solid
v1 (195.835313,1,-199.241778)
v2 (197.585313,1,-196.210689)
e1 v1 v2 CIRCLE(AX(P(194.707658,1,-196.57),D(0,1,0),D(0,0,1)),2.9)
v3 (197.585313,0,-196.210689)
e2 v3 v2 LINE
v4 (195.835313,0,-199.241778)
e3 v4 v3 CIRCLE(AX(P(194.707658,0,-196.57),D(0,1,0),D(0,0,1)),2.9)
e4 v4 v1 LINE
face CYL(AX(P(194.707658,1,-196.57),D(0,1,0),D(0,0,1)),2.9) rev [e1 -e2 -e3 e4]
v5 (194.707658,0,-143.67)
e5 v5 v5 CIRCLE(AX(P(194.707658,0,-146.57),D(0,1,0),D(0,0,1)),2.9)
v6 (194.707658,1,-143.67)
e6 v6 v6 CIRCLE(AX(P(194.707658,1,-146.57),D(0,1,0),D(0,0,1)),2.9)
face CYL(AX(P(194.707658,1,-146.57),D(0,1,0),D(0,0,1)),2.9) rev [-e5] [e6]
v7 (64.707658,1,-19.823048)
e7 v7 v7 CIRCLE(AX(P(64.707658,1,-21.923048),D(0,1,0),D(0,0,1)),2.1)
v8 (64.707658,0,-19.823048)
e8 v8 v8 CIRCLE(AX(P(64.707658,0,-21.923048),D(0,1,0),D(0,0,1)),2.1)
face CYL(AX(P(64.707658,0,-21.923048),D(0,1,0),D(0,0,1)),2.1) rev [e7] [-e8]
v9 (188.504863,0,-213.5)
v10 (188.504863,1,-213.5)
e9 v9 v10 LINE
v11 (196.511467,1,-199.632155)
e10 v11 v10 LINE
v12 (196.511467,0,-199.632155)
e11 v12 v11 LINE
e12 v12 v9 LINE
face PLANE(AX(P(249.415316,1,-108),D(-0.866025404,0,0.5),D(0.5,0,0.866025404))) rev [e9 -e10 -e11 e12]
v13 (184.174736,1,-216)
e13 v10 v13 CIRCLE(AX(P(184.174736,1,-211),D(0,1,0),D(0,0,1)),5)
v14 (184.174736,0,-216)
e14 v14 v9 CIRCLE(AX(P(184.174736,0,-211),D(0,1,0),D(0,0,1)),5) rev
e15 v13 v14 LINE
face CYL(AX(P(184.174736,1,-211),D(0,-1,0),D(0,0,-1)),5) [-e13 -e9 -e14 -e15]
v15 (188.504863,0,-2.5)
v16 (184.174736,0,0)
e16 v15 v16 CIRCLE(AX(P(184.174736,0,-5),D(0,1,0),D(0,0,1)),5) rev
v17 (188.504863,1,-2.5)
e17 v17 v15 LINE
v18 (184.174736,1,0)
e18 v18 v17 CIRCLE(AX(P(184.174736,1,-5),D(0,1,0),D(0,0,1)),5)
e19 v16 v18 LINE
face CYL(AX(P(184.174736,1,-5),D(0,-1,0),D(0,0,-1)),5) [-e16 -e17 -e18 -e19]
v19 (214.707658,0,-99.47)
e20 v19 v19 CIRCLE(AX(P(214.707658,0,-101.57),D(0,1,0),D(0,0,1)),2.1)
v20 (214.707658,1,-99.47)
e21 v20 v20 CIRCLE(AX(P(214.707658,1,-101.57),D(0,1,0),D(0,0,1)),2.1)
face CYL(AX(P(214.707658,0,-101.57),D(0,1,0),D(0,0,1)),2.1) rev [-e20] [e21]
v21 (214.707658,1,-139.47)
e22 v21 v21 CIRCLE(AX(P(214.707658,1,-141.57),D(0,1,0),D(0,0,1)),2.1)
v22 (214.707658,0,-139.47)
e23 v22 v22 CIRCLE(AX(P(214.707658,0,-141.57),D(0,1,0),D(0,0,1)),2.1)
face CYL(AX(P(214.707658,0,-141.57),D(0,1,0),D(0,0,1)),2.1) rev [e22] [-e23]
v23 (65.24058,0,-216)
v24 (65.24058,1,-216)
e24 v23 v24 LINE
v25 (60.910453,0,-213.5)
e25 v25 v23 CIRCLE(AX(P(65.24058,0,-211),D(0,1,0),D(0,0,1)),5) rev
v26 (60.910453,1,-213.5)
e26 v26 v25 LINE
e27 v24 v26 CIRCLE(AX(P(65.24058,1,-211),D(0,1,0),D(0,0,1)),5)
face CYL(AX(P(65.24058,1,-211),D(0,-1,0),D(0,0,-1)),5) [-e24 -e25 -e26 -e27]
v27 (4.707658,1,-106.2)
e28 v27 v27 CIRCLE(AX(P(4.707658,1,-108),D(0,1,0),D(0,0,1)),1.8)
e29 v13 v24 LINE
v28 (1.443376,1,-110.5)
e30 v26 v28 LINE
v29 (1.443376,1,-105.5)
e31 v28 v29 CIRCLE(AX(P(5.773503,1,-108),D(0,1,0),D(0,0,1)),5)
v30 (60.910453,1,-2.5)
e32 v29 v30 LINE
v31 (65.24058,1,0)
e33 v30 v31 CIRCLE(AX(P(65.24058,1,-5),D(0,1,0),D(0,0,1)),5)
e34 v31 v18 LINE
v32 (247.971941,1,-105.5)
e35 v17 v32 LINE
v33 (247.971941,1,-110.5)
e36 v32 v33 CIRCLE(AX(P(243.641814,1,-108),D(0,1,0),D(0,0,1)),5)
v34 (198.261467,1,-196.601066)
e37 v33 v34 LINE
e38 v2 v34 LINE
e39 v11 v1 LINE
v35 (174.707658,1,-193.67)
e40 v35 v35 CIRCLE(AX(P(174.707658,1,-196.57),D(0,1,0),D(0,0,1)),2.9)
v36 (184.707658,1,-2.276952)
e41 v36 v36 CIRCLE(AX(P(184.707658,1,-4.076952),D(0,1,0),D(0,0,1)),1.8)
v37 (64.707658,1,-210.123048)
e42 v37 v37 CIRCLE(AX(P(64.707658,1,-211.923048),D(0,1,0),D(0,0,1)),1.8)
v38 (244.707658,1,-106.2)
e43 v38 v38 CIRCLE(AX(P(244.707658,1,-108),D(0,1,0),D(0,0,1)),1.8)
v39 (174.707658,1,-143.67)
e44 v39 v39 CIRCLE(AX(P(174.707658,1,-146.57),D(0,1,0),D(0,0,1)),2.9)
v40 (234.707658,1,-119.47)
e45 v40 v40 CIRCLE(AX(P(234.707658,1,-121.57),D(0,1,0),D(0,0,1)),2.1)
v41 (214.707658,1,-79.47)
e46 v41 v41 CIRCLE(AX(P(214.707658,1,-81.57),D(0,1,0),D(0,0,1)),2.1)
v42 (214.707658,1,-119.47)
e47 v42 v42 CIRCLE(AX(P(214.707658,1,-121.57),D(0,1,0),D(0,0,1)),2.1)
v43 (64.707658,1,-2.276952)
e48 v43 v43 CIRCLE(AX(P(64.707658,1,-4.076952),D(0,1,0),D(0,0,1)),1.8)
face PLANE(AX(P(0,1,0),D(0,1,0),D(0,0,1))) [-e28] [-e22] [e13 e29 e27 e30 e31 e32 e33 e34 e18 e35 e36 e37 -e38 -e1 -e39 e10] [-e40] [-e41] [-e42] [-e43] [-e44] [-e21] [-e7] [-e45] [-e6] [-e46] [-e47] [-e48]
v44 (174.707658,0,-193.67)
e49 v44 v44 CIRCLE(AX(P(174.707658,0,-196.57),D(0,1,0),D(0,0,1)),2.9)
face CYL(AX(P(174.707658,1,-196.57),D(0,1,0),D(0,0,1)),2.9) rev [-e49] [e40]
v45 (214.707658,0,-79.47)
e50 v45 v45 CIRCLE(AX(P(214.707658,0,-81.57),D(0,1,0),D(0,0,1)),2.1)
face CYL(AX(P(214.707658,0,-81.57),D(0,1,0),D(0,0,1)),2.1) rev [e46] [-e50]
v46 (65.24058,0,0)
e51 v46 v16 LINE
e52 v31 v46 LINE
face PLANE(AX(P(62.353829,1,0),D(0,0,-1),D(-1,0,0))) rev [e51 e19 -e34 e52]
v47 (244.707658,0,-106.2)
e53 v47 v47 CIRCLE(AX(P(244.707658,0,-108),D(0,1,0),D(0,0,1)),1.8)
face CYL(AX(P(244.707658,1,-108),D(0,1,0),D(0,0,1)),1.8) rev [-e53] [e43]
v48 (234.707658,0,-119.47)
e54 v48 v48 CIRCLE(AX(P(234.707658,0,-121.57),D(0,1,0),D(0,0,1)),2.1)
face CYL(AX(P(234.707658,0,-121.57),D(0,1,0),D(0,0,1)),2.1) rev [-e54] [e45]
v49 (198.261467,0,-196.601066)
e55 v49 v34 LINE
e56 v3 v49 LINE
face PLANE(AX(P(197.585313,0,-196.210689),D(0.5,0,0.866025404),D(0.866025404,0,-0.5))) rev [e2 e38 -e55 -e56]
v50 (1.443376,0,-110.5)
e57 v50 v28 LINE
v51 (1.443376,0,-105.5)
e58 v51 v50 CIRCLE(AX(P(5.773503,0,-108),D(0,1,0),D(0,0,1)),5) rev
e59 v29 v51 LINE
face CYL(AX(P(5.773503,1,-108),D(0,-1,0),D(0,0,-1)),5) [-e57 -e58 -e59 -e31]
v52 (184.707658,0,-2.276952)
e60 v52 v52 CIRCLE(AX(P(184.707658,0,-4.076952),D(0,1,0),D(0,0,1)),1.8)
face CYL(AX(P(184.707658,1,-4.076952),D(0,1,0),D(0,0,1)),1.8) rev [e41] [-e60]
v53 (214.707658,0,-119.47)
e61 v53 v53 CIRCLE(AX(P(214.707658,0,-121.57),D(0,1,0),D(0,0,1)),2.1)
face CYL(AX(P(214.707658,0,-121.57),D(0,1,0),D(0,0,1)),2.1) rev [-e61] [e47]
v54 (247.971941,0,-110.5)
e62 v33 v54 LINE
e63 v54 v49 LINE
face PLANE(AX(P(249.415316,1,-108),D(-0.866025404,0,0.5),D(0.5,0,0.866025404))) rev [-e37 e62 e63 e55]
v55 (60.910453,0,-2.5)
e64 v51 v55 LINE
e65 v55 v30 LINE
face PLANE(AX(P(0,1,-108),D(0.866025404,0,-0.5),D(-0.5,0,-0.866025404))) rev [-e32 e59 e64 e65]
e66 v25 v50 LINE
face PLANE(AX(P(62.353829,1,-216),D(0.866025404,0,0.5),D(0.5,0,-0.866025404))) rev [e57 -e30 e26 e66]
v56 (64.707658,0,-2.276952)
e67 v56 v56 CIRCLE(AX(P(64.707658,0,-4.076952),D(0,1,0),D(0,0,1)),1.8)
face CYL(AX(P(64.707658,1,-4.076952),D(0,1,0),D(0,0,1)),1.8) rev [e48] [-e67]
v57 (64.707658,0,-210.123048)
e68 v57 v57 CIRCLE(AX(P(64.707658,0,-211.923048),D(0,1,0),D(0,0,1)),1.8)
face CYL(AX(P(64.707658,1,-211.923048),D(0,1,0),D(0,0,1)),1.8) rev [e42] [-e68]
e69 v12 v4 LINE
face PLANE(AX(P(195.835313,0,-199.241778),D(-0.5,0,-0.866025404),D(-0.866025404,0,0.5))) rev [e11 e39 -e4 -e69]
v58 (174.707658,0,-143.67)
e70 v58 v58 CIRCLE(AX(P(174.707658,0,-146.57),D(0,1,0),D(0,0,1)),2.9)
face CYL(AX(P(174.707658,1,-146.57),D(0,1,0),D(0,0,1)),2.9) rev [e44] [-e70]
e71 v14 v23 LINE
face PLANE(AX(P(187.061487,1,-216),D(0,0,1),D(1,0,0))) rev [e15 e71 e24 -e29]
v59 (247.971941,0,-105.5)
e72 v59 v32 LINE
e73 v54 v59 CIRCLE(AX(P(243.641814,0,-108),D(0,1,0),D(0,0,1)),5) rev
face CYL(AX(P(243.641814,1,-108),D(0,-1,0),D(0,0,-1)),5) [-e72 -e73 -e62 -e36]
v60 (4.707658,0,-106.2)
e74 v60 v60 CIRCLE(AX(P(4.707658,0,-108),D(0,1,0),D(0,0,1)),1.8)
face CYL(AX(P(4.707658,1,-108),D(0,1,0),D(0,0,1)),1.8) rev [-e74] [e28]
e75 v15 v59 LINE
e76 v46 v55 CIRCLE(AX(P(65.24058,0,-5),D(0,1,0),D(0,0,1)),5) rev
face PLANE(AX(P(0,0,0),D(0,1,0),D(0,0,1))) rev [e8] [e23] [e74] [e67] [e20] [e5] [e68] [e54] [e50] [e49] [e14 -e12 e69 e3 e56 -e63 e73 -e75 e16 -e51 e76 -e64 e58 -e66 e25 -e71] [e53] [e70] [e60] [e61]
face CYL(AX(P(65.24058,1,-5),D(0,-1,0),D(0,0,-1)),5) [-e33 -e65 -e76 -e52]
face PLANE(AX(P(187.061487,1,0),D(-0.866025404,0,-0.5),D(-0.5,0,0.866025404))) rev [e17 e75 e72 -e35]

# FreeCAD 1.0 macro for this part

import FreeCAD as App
import Part
import Sketcher
from FreeCAD import Vector
Q = App.Units.Quantity


def edges_at(feature, points):
    """Names of the edges that pass closest to the given points."""
    edges = feature.Shape.Edges
    near = lambda p: min(range(len(edges)), key=lambda i: edges[i].distToShape(Part.Vertex(*p))[0])
    return sorted({f"Edge{near(p) + 1}" for p in points})

doc = App.newDocument("Part")
body = doc.addObject("PartDesign::Body", "Body")

# Sketch on XZ plane
sketch1 = body.newObject("Sketcher::SketchObject", "Sketch")
sketch1.AttachmentSupport = (doc.getObject("XZ_Plane"), [""])
sketch1.MapMode = "FlatFace"
sketch1.addGeometry(Part.LineSegment(Vector(62, 0, 0), Vector(187, 0, 0)), False)
sketch1.addGeometry(Part.LineSegment(Vector(187, 0, 0), Vector(249, -108, 0)), False)
sketch1.addGeometry(Part.LineSegment(Vector(249, -108, 0), Vector(187, -216, 0)), False)
sketch1.addGeometry(Part.LineSegment(Vector(187, -216, 0), Vector(62, -216, 0)), False)
sketch1.addGeometry(Part.LineSegment(Vector(62, -216, 0), Vector(0, -108, 0)), False)
sketch1.addGeometry(Part.LineSegment(Vector(0, -108, 0), Vector(62, 0, 0)), False)
sketch1.addConstraint(Sketcher.Constraint("Coincident", 0, 2, 1, 1))
sketch1.addConstraint(Sketcher.Constraint("Coincident", 1, 2, 2, 1))
sketch1.addConstraint(Sketcher.Constraint("Coincident", 2, 2, 3, 1))
sketch1.addConstraint(Sketcher.Constraint("Coincident", 3, 2, 4, 1))
sketch1.addConstraint(Sketcher.Constraint("Coincident", 4, 2, 5, 1))
sketch1.addConstraint(Sketcher.Constraint("Coincident", 5, 2, 0, 1))
sketch1.addConstraint(Sketcher.Constraint("Horizontal", 0))
sketch1.addConstraint(Sketcher.Constraint("Horizontal", 3))
sketch1.addConstraint(Sketcher.Constraint("PointOnObject", 0, 2, -1))
sketch1.addConstraint(Sketcher.Constraint("PointOnObject", 4, 2, -2))
sketch1.addConstraint(Sketcher.Constraint("Parallel", 1, 4))
sketch1.addConstraint(Sketcher.Constraint("Parallel", 2, 5))
sketch1.addConstraint(Sketcher.Constraint("Horizontal", 1, 2, 4, 2))
sketch1.addConstraint(Sketcher.Constraint("Vertical", 0, 2, 2, 2))
sketch1.addConstraint(Sketcher.Constraint("Vertical", 3, 2, 5, 2))
sketch1.addConstraint(Sketcher.Constraint("Angle", 1, Q("-60 deg")))
sketch1.addConstraint(Sketcher.Constraint("DistanceY", 1, 2, -1, 1, 108.0))
sketch1.addConstraint(Sketcher.Constraint("DistanceX", 0, 1, 0, 2, 124.707658))
pad1 = body.newObject("PartDesign::Pad", "Pad")
pad1.Profile = sketch1
pad1.Length = 1
pad1.Reversed = True
doc.recompute()

fillet = body.newObject("PartDesign::Fillet", "Fillet")
fillet.Base = (pad1, edges_at(pad1, [
    (0, 0.5, -108),
    (62.354, 0.5, -216),
    (187.061, 0.5, -216),
    (249.415, 0.5, -108),
    (187.061, 0.5, 0),
    (62.354, 0.5, 0),
]))
fillet.Radius = 5

# Sketch on XZ plane
sketch2 = body.newObject("Sketcher::SketchObject", "Sketch001")
sketch2.AttachmentSupport = (doc.getObject("XZ_Plane"), [""])
sketch2.MapMode = "FlatFace"
sketch2.AttachmentOffset = App.Placement(Vector(0, 0, -1), App.Rotation())
sketch2.addGeometry(Part.Circle(Vector(174.7, -146.6, 0), Vector(0, 0, 1), 2.9), False)
sketch2.addGeometry(Part.Circle(Vector(194.7, -146.6, 0), Vector(0, 0, 1), 2.9), False)
sketch2.addGeometry(Part.Circle(Vector(194.7, -196.6, 0), Vector(0, 0, 1), 2.9), False)
sketch2.addGeometry(Part.Circle(Vector(174.7, -196.6, 0), Vector(0, 0, 1), 2.9), False)
sketch2.addConstraint(Sketcher.Constraint("Equal", 0, 1))
sketch2.addConstraint(Sketcher.Constraint("Equal", 1, 2))
sketch2.addConstraint(Sketcher.Constraint("Equal", 2, 3))
sketch2.addConstraint(Sketcher.Constraint("Horizontal", 0, 3, 1, 3))
sketch2.addConstraint(Sketcher.Constraint("Horizontal", 2, 3, 3, 3))
sketch2.addConstraint(Sketcher.Constraint("Vertical", 1, 3, 2, 3))
sketch2.addConstraint(Sketcher.Constraint("Vertical", 0, 3, 3, 3))
sketch2.addConstraint(Sketcher.Constraint("Diameter", 0, 5.8))
sketch2.addConstraint(Sketcher.Constraint("DistanceX", 0, 3, 1, 3, 20.0))
sketch2.addConstraint(Sketcher.Constraint("DistanceY", 2, 3, 1, 3, 50.0))
sketch2.addConstraint(Sketcher.Constraint("DistanceY", 0, 3, -1, 1, 146.57))
sketch2.addConstraint(Sketcher.Constraint("DistanceX", -1, 1, 0, 3, 174.707658))
doc.recompute()
hole = body.newObject("PartDesign::Hole", "Hole")
hole.Profile = sketch2
hole.ThreadType = "None"
hole.Diameter = 5.8
hole.DepthType = "Dimension"
hole.Depth = 5
hole.DrillPoint = "Angled"
hole.DrillPointAngle = 118
hole.Reversed = True

# Sketch on XZ plane
sketch3 = body.newObject("Sketcher::SketchObject", "Sketch002")
sketch3.AttachmentSupport = (doc.getObject("XZ_Plane"), [""])
sketch3.MapMode = "FlatFace"
sketch3.AttachmentOffset = App.Placement(Vector(0, 0, -1), App.Rotation())
sketch3.addGeometry(Part.Circle(Vector(4.7, -108, 0), Vector(0, 0, 1), 1.8), False)
sketch3.addGeometry(Part.Circle(Vector(64.7, -211.9, 0), Vector(0, 0, 1), 1.8), False)
sketch3.addGeometry(Part.Circle(Vector(244.7, -108, 0), Vector(0, 0, 1), 1.8), False)
sketch3.addGeometry(Part.Circle(Vector(184.7, -4.1, 0), Vector(0, 0, 1), 1.8), False)
sketch3.addGeometry(Part.Circle(Vector(64.7, -4.1, 0), Vector(0, 0, 1), 1.8), False)
sketch3.addConstraint(Sketcher.Constraint("Equal", 0, 1))
sketch3.addConstraint(Sketcher.Constraint("Equal", 1, 2))
sketch3.addConstraint(Sketcher.Constraint("Equal", 2, 3))
sketch3.addConstraint(Sketcher.Constraint("Equal", 3, 4))
sketch3.addConstraint(Sketcher.Constraint("Horizontal", 0, 3, 2, 3))
sketch3.addConstraint(Sketcher.Constraint("Horizontal", 3, 3, 4, 3))
sketch3.addConstraint(Sketcher.Constraint("Vertical", 1, 3, 4, 3))
sketch3.addConstraint(Sketcher.Constraint("Diameter", 0, 3.6))
sketch3.addConstraint(Sketcher.Constraint("DistanceY", 0, 3, -1, 1, 108.0))
sketch3.addConstraint(Sketcher.Constraint("DistanceX", 0, 3, 1, 3, 60.0))
sketch3.addConstraint(Sketcher.Constraint("DistanceX", 1, 3, 2, 3, 180.0))
sketch3.addConstraint(Sketcher.Constraint("DistanceX", 3, 3, 2, 3, 60.0))
sketch3.addConstraint(Sketcher.Constraint("DistanceX", -1, 1, 0, 3, 4.707658))
sketch3.addConstraint(Sketcher.Constraint("DistanceY", 1, 3, -1, 1, 211.923048))
sketch3.addConstraint(Sketcher.Constraint("DistanceY", 3, 3, -1, 1, 4.076952))
doc.recompute()
hole2 = body.newObject("PartDesign::Hole", "Hole001")
hole2.Profile = sketch3
hole2.ThreadType = "None"
hole2.Diameter = 3.6
hole2.DepthType = "ThroughAll"
hole2.Reversed = True

# Sketch on XZ plane
sketch4 = body.newObject("Sketcher::SketchObject", "Sketch003")
sketch4.AttachmentSupport = (doc.getObject("XZ_Plane"), [""])
sketch4.MapMode = "FlatFace"
sketch4.AttachmentOffset = App.Placement(Vector(0, 0, -1), App.Rotation())
sketch4.addGeometry(Part.LineSegment(Vector(196.5, -199.6, 0), Vector(195.8, -199.2, 0)), False)
sketch4.addGeometry(Part.LineSegment(Vector(195.8, -199.2, 0), Vector(197.6, -196.2, 0)), False)
sketch4.addGeometry(Part.LineSegment(Vector(197.6, -196.2, 0), Vector(198.3, -196.6, 0)), False)
sketch4.addGeometry(Part.LineSegment(Vector(198.3, -196.6, 0), Vector(196.5, -199.6, 0)), False)
sketch4.addConstraint(Sketcher.Constraint("Coincident", 0, 2, 1, 1))
sketch4.addConstraint(Sketcher.Constraint("Coincident", 1, 2, 2, 1))
sketch4.addConstraint(Sketcher.Constraint("Coincident", 2, 2, 3, 1))
sketch4.addConstraint(Sketcher.Constraint("Coincident", 3, 2, 0, 1))
sketch4.addConstraint(Sketcher.Constraint("Perpendicular", 0, 1))
sketch4.addConstraint(Sketcher.Constraint("Perpendicular", 1, 2))
sketch4.addConstraint(Sketcher.Constraint("Perpendicular", 2, 3))
sketch4.addConstraint(Sketcher.Constraint("Angle", 0, Q("150 deg")))
sketch4.addConstraint(Sketcher.Constraint("Distance", 1, 3.5))
sketch4.addConstraint(Sketcher.Constraint("DistanceY", 1, 2, -1, 1, 196.210689))
sketch4.addConstraint(Sketcher.Constraint("DistanceY", 0, 2, 2, 2, 2.640711))
sketch4.addConstraint(Sketcher.Constraint("DistanceX", -1, 1, 0, 2, 195.835313))
pocket1 = body.newObject("PartDesign::Pocket", "Pocket")
pocket1.Profile = sketch4
pocket1.Type = "ThroughAll"
pocket1.Reversed = True

# Sketch on XZ plane
sketch5 = body.newObject("Sketcher::SketchObject", "Sketch004")
sketch5.AttachmentSupport = (doc.getObject("XZ_Plane"), [""])
sketch5.MapMode = "FlatFace"
sketch5.AttachmentOffset = App.Placement(Vector(0, 0, -1), App.Rotation())
sketch5.addGeometry(Part.Circle(Vector(64.7, -21.9, 0), Vector(0, 0, 1), 2.1), False)
sketch5.addGeometry(Part.Circle(Vector(214.7, -141.6, 0), Vector(0, 0, 1), 2.1), False)
sketch5.addGeometry(Part.Circle(Vector(214.7, -121.6, 0), Vector(0, 0, 1), 2.1), False)
sketch5.addGeometry(Part.Circle(Vector(214.7, -101.6, 0), Vector(0, 0, 1), 2.1), False)
sketch5.addGeometry(Part.Circle(Vector(214.7, -81.6, 0), Vector(0, 0, 1), 2.1), False)
sketch5.addGeometry(Part.Circle(Vector(234.7, -121.6, 0), Vector(0, 0, 1), 2.1), False)
sketch5.addConstraint(Sketcher.Constraint("Equal", 0, 1))
sketch5.addConstraint(Sketcher.Constraint("Equal", 1, 2))
sketch5.addConstraint(Sketcher.Constraint("Equal", 2, 3))
sketch5.addConstraint(Sketcher.Constraint("Equal", 3, 4))
sketch5.addConstraint(Sketcher.Constraint("Equal", 4, 5))
sketch5.addConstraint(Sketcher.Constraint("Horizontal", 2, 3, 5, 3))
sketch5.addConstraint(Sketcher.Constraint("Vertical", 1, 3, 2, 3))
sketch5.addConstraint(Sketcher.Constraint("Vertical", 2, 3, 3, 3))
sketch5.addConstraint(Sketcher.Constraint("Vertical", 3, 3, 4, 3))
sketch5.addConstraint(Sketcher.Constraint("Diameter", 0, 4.2))
sketch5.addConstraint(Sketcher.Constraint("DistanceX", 0, 3, 1, 3, 150.0))
sketch5.addConstraint(Sketcher.Constraint("DistanceY", 1, 3, 2, 3, 20.0))
sketch5.addConstraint(Sketcher.Constraint("DistanceY", 2, 3, 3, 3, 20.0))
sketch5.addConstraint(Sketcher.Constraint("DistanceY", 3, 3, 4, 3, 20.0))
sketch5.addConstraint(Sketcher.Constraint("DistanceX", 2, 3, 5, 3, 20.0))
sketch5.addConstraint(Sketcher.Constraint("DistanceY", 1, 3, -1, 1, 141.57))
sketch5.addConstraint(Sketcher.Constraint("DistanceX", -1, 1, 0, 3, 64.707658))
sketch5.addConstraint(Sketcher.Constraint("DistanceY", 0, 3, -1, 1, 21.923048))
pocket2 = body.newObject("PartDesign::Pocket", "Pocket001")
pocket2.Profile = sketch5
pocket2.Type = "ThroughAll"
pocket2.Reversed = True

doc.recompute()
